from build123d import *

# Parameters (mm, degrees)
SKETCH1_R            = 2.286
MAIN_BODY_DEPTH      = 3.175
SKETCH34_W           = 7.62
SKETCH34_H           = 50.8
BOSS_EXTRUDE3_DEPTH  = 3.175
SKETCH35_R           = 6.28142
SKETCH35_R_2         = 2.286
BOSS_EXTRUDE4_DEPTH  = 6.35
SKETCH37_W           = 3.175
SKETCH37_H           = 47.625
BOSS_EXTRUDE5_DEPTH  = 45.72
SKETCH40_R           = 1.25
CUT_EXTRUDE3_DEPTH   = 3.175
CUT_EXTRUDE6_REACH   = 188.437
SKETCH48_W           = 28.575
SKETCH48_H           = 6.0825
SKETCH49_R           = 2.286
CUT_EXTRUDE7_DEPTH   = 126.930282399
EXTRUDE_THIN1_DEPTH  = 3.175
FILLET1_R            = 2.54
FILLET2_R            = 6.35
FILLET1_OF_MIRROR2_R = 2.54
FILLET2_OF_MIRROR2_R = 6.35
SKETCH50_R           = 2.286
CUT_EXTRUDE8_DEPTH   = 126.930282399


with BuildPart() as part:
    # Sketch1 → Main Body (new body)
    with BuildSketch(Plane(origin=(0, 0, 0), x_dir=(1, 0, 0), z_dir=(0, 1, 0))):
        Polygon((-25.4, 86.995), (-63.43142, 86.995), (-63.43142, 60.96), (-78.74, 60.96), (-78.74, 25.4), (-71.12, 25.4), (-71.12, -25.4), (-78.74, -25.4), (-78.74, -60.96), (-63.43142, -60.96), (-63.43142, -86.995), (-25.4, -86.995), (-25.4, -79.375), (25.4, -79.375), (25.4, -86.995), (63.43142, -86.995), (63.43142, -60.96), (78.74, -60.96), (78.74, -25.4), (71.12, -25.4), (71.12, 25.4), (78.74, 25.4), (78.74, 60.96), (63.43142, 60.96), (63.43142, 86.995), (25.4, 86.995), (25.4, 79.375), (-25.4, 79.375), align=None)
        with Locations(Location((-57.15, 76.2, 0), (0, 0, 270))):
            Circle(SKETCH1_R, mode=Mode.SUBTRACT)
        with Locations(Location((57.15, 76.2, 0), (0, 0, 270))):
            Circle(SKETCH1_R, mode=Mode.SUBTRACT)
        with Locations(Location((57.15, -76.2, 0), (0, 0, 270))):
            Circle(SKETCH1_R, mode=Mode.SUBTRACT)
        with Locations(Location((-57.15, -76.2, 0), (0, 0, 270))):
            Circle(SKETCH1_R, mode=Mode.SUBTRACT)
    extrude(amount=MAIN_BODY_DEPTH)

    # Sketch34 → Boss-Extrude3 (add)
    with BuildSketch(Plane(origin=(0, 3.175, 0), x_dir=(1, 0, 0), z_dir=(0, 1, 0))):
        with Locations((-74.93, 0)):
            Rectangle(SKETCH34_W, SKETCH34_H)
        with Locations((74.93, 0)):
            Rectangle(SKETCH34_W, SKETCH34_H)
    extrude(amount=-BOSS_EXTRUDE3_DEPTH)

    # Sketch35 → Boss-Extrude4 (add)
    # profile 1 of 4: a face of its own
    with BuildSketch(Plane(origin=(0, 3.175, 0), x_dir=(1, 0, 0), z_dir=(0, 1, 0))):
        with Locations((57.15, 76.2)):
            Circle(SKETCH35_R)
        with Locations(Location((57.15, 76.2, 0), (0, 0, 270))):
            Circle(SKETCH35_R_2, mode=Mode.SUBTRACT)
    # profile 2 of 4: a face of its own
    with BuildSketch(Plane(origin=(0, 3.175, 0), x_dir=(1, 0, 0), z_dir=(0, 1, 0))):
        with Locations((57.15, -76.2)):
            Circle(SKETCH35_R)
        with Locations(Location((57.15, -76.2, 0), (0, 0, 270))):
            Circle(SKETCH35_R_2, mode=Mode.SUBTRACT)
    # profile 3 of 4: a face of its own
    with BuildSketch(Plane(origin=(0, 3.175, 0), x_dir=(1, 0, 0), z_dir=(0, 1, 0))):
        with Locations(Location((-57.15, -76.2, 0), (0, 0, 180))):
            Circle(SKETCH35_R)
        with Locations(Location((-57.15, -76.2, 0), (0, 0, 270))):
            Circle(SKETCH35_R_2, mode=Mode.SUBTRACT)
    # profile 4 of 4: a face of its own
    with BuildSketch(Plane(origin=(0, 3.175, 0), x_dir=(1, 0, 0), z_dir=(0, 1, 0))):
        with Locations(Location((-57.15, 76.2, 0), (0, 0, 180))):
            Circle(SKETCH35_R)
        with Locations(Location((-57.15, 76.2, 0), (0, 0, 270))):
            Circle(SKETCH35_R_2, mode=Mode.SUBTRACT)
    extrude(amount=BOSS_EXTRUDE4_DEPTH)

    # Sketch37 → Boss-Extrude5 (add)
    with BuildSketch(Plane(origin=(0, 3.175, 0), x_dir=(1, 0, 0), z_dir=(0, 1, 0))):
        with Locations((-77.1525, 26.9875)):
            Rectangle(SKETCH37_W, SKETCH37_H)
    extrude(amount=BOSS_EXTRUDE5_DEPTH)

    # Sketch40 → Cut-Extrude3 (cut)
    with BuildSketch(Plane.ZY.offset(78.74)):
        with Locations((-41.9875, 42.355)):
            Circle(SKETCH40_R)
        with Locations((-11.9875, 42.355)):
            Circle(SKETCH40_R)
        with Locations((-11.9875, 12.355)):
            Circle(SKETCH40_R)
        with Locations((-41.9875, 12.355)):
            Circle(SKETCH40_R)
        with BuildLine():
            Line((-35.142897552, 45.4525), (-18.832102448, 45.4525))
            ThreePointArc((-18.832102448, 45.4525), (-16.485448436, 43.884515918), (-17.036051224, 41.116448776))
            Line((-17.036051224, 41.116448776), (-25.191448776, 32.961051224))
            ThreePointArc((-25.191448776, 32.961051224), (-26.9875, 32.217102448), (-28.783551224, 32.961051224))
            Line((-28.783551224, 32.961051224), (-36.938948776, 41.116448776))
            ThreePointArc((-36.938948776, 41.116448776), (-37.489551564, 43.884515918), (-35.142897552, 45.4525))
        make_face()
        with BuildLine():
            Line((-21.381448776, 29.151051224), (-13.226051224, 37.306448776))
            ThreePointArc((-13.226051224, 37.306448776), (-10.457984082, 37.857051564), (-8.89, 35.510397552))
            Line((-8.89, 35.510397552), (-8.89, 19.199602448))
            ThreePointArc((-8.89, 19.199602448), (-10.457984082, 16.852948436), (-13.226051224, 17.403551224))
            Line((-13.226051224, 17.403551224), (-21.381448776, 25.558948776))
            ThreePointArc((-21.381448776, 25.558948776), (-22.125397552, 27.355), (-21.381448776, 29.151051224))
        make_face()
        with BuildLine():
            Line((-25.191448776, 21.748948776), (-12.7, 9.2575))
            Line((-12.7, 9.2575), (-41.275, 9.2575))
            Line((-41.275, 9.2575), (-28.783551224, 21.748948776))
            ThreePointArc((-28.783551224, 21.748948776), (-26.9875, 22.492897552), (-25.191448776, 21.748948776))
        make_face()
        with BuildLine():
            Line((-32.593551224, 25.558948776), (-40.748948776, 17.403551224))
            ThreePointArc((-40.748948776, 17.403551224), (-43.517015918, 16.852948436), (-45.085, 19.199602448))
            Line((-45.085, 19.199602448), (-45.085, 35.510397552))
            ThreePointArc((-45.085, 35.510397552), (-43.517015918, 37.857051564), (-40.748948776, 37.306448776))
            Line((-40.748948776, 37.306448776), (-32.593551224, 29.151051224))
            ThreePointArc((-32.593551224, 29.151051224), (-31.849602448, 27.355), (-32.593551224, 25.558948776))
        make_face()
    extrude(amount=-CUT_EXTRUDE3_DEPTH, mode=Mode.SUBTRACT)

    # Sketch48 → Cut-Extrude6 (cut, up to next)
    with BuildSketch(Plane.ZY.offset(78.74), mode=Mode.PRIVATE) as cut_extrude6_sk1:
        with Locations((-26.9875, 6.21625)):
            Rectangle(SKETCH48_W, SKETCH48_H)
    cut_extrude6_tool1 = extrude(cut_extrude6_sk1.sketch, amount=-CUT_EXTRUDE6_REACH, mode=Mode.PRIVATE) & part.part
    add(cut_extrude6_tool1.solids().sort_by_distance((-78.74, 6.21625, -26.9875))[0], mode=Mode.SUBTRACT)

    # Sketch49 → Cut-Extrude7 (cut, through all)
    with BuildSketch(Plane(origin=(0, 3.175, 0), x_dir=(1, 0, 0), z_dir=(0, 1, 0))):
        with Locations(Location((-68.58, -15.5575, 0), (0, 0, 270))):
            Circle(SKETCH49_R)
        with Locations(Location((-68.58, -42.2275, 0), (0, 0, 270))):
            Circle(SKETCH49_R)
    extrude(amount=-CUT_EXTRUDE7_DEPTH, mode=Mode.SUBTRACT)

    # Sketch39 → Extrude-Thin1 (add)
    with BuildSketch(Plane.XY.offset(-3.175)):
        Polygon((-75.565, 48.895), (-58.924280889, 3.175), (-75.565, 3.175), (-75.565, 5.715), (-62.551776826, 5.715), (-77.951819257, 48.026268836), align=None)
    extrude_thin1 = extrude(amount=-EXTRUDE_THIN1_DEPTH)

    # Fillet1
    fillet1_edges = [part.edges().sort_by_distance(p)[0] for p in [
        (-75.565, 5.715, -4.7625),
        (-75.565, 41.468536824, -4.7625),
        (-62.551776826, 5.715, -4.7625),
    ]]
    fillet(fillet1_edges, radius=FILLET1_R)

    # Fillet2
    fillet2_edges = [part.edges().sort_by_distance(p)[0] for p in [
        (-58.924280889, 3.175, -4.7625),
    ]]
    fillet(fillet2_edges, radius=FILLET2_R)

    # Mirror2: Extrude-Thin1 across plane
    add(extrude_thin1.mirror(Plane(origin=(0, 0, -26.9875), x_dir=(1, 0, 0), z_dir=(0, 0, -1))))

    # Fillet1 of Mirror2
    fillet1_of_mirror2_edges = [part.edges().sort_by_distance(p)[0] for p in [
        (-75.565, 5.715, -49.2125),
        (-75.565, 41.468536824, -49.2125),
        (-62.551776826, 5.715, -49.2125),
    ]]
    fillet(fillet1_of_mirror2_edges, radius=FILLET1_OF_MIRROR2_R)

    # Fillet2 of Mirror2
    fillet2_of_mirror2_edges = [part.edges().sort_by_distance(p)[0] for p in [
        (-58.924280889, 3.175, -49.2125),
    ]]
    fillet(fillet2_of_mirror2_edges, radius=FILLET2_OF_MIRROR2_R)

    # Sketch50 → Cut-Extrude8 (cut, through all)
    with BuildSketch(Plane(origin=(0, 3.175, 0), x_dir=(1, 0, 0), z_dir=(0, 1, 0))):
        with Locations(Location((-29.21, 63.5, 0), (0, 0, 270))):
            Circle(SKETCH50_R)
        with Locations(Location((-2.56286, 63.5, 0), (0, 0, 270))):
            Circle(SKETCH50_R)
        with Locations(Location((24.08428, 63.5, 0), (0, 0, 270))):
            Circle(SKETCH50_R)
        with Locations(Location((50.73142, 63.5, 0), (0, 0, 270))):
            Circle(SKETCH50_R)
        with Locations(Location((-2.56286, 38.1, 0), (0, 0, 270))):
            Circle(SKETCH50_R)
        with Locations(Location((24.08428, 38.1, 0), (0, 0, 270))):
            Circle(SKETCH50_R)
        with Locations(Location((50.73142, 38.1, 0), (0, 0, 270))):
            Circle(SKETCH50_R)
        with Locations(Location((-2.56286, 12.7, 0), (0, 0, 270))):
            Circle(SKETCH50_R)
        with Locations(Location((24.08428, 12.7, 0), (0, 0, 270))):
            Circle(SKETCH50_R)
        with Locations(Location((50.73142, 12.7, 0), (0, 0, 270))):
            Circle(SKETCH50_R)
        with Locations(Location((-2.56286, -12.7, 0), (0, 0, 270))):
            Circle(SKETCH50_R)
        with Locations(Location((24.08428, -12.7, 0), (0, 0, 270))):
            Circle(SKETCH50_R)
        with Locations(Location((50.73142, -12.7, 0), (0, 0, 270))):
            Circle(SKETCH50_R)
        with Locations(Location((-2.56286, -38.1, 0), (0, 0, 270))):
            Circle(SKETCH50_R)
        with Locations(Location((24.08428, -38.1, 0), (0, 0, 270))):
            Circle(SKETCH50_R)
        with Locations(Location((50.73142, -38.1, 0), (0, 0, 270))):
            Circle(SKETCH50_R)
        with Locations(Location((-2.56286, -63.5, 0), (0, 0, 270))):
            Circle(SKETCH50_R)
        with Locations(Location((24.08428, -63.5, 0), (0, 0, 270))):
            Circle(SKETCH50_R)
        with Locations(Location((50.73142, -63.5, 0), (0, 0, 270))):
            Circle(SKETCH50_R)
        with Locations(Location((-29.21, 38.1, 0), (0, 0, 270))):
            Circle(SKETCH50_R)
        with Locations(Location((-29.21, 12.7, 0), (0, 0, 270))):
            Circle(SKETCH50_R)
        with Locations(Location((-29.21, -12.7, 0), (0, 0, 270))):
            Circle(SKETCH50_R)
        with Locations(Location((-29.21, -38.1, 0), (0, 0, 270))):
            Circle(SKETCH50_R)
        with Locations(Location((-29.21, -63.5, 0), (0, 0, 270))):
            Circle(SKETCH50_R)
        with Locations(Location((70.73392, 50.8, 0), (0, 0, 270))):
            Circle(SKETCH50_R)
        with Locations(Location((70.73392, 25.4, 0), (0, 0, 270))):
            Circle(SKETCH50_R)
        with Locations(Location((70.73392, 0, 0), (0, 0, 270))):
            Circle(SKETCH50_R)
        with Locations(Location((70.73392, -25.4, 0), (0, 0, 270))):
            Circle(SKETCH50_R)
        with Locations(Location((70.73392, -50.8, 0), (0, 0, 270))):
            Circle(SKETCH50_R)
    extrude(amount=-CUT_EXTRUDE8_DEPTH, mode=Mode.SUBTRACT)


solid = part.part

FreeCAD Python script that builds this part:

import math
import FreeCAD as App
import Part
import Sketcher
from FreeCAD import Vector
Q = App.Units.Quantity


def edges_at(feature, points):
    """Names of the edges that pass closest to the given points."""
    edges = feature.Shape.Edges
    near = lambda p: min(range(len(edges)), key=lambda i: edges[i].distToShape(Part.Vertex(*p))[0])
    return sorted({f"Edge{near(p) + 1}" for p in points})

doc = App.newDocument("Part")
params = doc.addObject("Spreadsheet::Sheet", "Params")
for row, (alias, value) in enumerate([
    ("sketch1_diameter", "0.18 in"),
    ("sketch1_width", "2 in"),
    ("sketch1_width2", "0.3 in"),
    ("sketch1_height", "1.4 in"),
    ("sketch1_height2", "1.025 in"),
    ("pad1_length", "0.125 in"),
    ("sketch2_height", "2 in"),
    ("sketch2_width", "0.3 in"),
    ("pad2_length", "0.125 in"),
    ("sketch3_diameter", "0.18 in"),
    ("pad3_length", "0.25 in"),
    ("sketch4_width", "0.125 in"),
    ("sketch4_height", "1.875 in"),
    ("pad4_length", "1.8 in"),
    ("sketch5_radius", "0.1 in"),
    ("sketch5_height", "1.125 in"),
    ("pocket1_length", "0.125 in"),
    ("sketch6_height", "1.125 in"),
    ("sketch7_diameter", "0.18 in"),
    ("sketch8_height", "0.1 in"),
    ("sketch8_length", "0.1 in"),
    ("pad5_length", "0.125 in"),
    ("fillet_radius", "0.1 in"),
    ("fillet2_radius", "0.25 in"),
    ("fillet3_radius", "0.1 in"),
    ("fillet4_radius", "0.25 in"),
    ("sketch9_diameter", "0.18 in"),
], start=1):
    params.set(f"A{row}", alias)
    params.set(f"B{row}", "=" + value)
    params.setAlias(f"B{row}", alias)

body = doc.addObject("PartDesign::Body", "Body")

# Sketch on XZ plane
sketch1 = body.newObject("Sketcher::SketchObject", "Sketch")
sketch1.AttachmentSupport = (doc.getObject("XZ_Plane"), [""])
sketch1.MapMode = "FlatFace"
sketch1.addGeometry([
    Part.LineSegment(Vector(-25.4, -87, 0), Vector(-63.4, -87, 0)),  # 0
    Part.LineSegment(Vector(-63.4, -87, 0), Vector(-63.4, -61, 0)),  # 1
    Part.LineSegment(Vector(-63.4, -61, 0), Vector(-78.7, -61, 0)),  # 2
    Part.LineSegment(Vector(-78.7, -61, 0), Vector(-78.7, -25.4, 0)),  # 3
    Part.LineSegment(Vector(-78.7, -25.4, 0), Vector(-71.1, -25.4, 0)),  # 4
    Part.LineSegment(Vector(-71.1, -25.4, 0), Vector(-71.1, 25.4, 0)),  # 5
    Part.LineSegment(Vector(-71.1, 25.4, 0), Vector(-78.7, 25.4, 0)),  # 6
    Part.LineSegment(Vector(-78.7, 25.4, 0), Vector(-78.7, 61, 0)),  # 7
    Part.LineSegment(Vector(-78.7, 61, 0), Vector(-63.4, 61, 0)),  # 8
    Part.LineSegment(Vector(-63.4, 61, 0), Vector(-63.4, 87, 0)),  # 9
    Part.LineSegment(Vector(-63.4, 87, 0), Vector(-25.4, 87, 0)),  # 10
    Part.LineSegment(Vector(-25.4, 87, 0), Vector(-25.4, 79.4, 0)),  # 11
    Part.LineSegment(Vector(-25.4, 79.4, 0), Vector(25.4, 79.4, 0)),  # 12
    Part.LineSegment(Vector(25.4, 79.4, 0), Vector(25.4, 87, 0)),  # 13
    Part.LineSegment(Vector(25.4, 87, 0), Vector(63.4, 87, 0)),  # 14
    Part.LineSegment(Vector(63.4, 87, 0), Vector(63.4, 61, 0)),  # 15
    Part.LineSegment(Vector(63.4, 61, 0), Vector(78.7, 61, 0)),  # 16
    Part.LineSegment(Vector(78.7, 61, 0), Vector(78.7, 25.4, 0)),  # 17
    Part.LineSegment(Vector(78.7, 25.4, 0), Vector(71.1, 25.4, 0)),  # 18
    Part.LineSegment(Vector(71.1, 25.4, 0), Vector(71.1, -25.4, 0)),  # 19
    Part.LineSegment(Vector(71.1, -25.4, 0), Vector(78.7, -25.4, 0)),  # 20
    Part.LineSegment(Vector(78.7, -25.4, 0), Vector(78.7, -61, 0)),  # 21
    Part.LineSegment(Vector(78.7, -61, 0), Vector(63.4, -61, 0)),  # 22
    Part.LineSegment(Vector(63.4, -61, 0), Vector(63.4, -87, 0)),  # 23
    Part.LineSegment(Vector(63.4, -87, 0), Vector(25.4, -87, 0)),  # 24
    Part.LineSegment(Vector(25.4, -87, 0), Vector(25.4, -79.4, 0)),  # 25
    Part.LineSegment(Vector(25.4, -79.4, 0), Vector(-25.4, -79.4, 0)),  # 26
    Part.LineSegment(Vector(-25.4, -79.4, 0), Vector(-25.4, -87, 0)),  # 27
    Part.Circle(Vector(-57.1, 76.2, 0), Vector(0, 0, 1), 2.3),  # 28
    Part.Circle(Vector(57.1, 76.2, 0), Vector(0, 0, 1), 2.3),  # 29
    Part.Circle(Vector(-57.1, -76.2, 0), Vector(0, 0, 1), 2.3),  # 30
    Part.Circle(Vector(57.1, -76.2, 0), Vector(0, 0, 1), 2.3),  # 31
], False)
sketch1.addConstraint([
    Sketcher.Constraint("Coincident", 0, 2, 1, 1),
    Sketcher.Constraint("Coincident", 1, 2, 2, 1),
    Sketcher.Constraint("Coincident", 2, 2, 3, 1),
    Sketcher.Constraint("Coincident", 3, 2, 4, 1),
    Sketcher.Constraint("Coincident", 4, 2, 5, 1),
    Sketcher.Constraint("Coincident", 5, 2, 6, 1),
    Sketcher.Constraint("Coincident", 6, 2, 7, 1),
    Sketcher.Constraint("Coincident", 7, 2, 8, 1),
    Sketcher.Constraint("Coincident", 8, 2, 9, 1),
    Sketcher.Constraint("Coincident", 9, 2, 10, 1),
    Sketcher.Constraint("Coincident", 10, 2, 11, 1),
    Sketcher.Constraint("Coincident", 11, 2, 12, 1),
    Sketcher.Constraint("Coincident", 12, 2, 13, 1),
    Sketcher.Constraint("Coincident", 13, 2, 14, 1),
    Sketcher.Constraint("Coincident", 14, 2, 15, 1),
    Sketcher.Constraint("Coincident", 15, 2, 16, 1),
    Sketcher.Constraint("Coincident", 16, 2, 17, 1),
    Sketcher.Constraint("Coincident", 17, 2, 18, 1),
    Sketcher.Constraint("Coincident", 18, 2, 19, 1),
    Sketcher.Constraint("Coincident", 19, 2, 20, 1),
    Sketcher.Constraint("Coincident", 20, 2, 21, 1),
    Sketcher.Constraint("Coincident", 21, 2, 22, 1),
    Sketcher.Constraint("Coincident", 22, 2, 23, 1),
    Sketcher.Constraint("Coincident", 23, 2, 24, 1),
    Sketcher.Constraint("Coincident", 24, 2, 25, 1),
    Sketcher.Constraint("Coincident", 25, 2, 26, 1),
    Sketcher.Constraint("Coincident", 26, 2, 27, 1),
    Sketcher.Constraint("Coincident", 27, 2, 0, 1),
    Sketcher.Constraint("Horizontal", 0),
    Sketcher.Constraint("Vertical", 1),
    Sketcher.Constraint("Horizontal", 2),
    Sketcher.Constraint("Vertical", 3),
    Sketcher.Constraint("Horizontal", 4),
    Sketcher.Constraint("Vertical", 5),
    Sketcher.Constraint("Horizontal", 6),
    Sketcher.Constraint("Vertical", 7),
    Sketcher.Constraint("Horizontal", 8),
    Sketcher.Constraint("Vertical", 9),
    Sketcher.Constraint("Horizontal", 10),
    Sketcher.Constraint("Vertical", 11),
    Sketcher.Constraint("Horizontal", 12),
    Sketcher.Constraint("Vertical", 13),
    Sketcher.Constraint("Horizontal", 14),
    Sketcher.Constraint("Vertical", 15),
    Sketcher.Constraint("Horizontal", 16),
    Sketcher.Constraint("Vertical", 17),
    Sketcher.Constraint("Horizontal", 18),
    Sketcher.Constraint("Vertical", 19),
    Sketcher.Constraint("Horizontal", 20),
    Sketcher.Constraint("Vertical", 21),
    Sketcher.Constraint("Horizontal", 22),
    Sketcher.Constraint("Vertical", 23),
    Sketcher.Constraint("Horizontal", 24),
    Sketcher.Constraint("Vertical", 25),
    Sketcher.Constraint("Horizontal", 26),
    Sketcher.Constraint("Vertical", 27),
    Sketcher.Constraint("Equal", 28, 29),
    Sketcher.Constraint("Equal", 29, 30),
    Sketcher.Constraint("Equal", 30, 31),
    Sketcher.Constraint("Symmetric", 29, 3, 30, 3, -1, 1),
    Sketcher.Constraint("Symmetric", 28, 3, 31, 3, -1, 1),
    Sketcher.Constraint("Symmetric", 0, 2, 14, 2, -1, 1),
    Sketcher.Constraint("Symmetric", 2, 2, 16, 2, -1, 1),
    Sketcher.Constraint("Symmetric", 4, 2, 18, 2, -1, 1),
    Sketcher.Constraint("Symmetric", 6, 2, 20, 2, -1, 1),
    Sketcher.Constraint("Symmetric", 8, 2, 22, 2, -1, 1),
    Sketcher.Constraint("Symmetric", 10, 2, 24, 2, -1, 1),
    Sketcher.Constraint("Symmetric", 12, 2, 26, 2, -1, 1),
    Sketcher.Constraint("Symmetric", 28, 3, 29, 3, -2),
    Sketcher.Constraint("Symmetric", 10, 2, 13, 2, -2),
    Sketcher.Constraint("Symmetric", 8, 2, 15, 2, -2),
    Sketcher.Constraint("Symmetric", 6, 2, 17, 2, -2),
    Sketcher.Constraint("Equal", 26, 5),
    Sketcher.Constraint("Equal", 20, 11),
    Sketcher.Constraint("Diameter", 28, Q("0.18 in")),
    Sketcher.Constraint("DistanceX", 12, 1, 12, 2, Q("2 in")),
    Sketcher.Constraint("DistanceX", 4, 1, 4, 2, Q("0.3 in")),
    Sketcher.Constraint("DistanceY", 3, 1, 3, 2, Q("1.4 in")),
    Sketcher.Constraint("DistanceY", -1, 1, 28, 3, Q("3 in")),
    Sketcher.Constraint("DistanceX", 2, 2, -1, 1, Q("3.1 in")),
    Sketcher.Constraint("DistanceX", 28, 3, 29, 3, Q("4.5 in")),
    Sketcher.Constraint("DistanceY", 1, 1, 1, 2, Q("1.025 in")),
    Sketcher.Constraint("DistanceX", 0, 2, 0, 1, Q("1.4973 in")),
])
sketch1.setExpression("Constraints[74]", "Params.sketch1_diameter")
sketch1.setExpression("Constraints[75]", "Params.sketch1_width")
sketch1.setExpression("Constraints[76]", "Params.sketch1_width2")
sketch1.setExpression("Constraints[77]", "Params.sketch1_height")
sketch1.setExpression("Constraints[81]", "Params.sketch1_height2")
pad1 = body.newObject("PartDesign::Pad", "Pad")
pad1.Profile = sketch1
pad1.setExpression("Length", "Params.pad1_length")
pad1.Reversed = True

# Sketch on XZ plane
sketch2 = body.newObject("Sketcher::SketchObject", "Sketch001")
sketch2.AttachmentSupport = (doc.getObject("XZ_Plane"), [""])
sketch2.MapMode = "FlatFace"
sketch2.AttachmentOffset = App.Placement(Vector(0, 0, -0.125 * 25.4), App.Rotation())
sketch2.addGeometry([
    Part.LineSegment(Vector(-79, -25, 0), Vector(-79, 25, 0)),  # 0
    Part.LineSegment(Vector(-79, 25, 0), Vector(-71, 25, 0)),  # 1
    Part.LineSegment(Vector(-71, 25, 0), Vector(-71, -25, 0)),  # 2
    Part.LineSegment(Vector(-71, -25, 0), Vector(-79, -25, 0)),  # 3
    Part.LineSegment(Vector(71, -25, 0), Vector(71, 25, 0)),  # 4
    Part.LineSegment(Vector(71, 25, 0), Vector(79, 25, 0)),  # 5
    Part.LineSegment(Vector(79, 25, 0), Vector(79, -25, 0)),  # 6
    Part.LineSegment(Vector(79, -25, 0), Vector(71, -25, 0)),  # 7
], False)
sketch2.addConstraint([
    Sketcher.Constraint("Coincident", 0, 2, 1, 1),
    Sketcher.Constraint("Coincident", 1, 2, 2, 1),
    Sketcher.Constraint("Coincident", 2, 2, 3, 1),
    Sketcher.Constraint("Coincident", 3, 2, 0, 1),
    Sketcher.Constraint("Coincident", 4, 2, 5, 1),
    Sketcher.Constraint("Coincident", 5, 2, 6, 1),
    Sketcher.Constraint("Coincident", 6, 2, 7, 1),
    Sketcher.Constraint("Coincident", 7, 2, 4, 1),
    Sketcher.Constraint("Vertical", 0),
    Sketcher.Constraint("Horizontal", 1),
    Sketcher.Constraint("Vertical", 2),
    Sketcher.Constraint("Horizontal", 3),
    Sketcher.Constraint("Vertical", 4),
    Sketcher.Constraint("Horizontal", 5),
    Sketcher.Constraint("Vertical", 6),
    Sketcher.Constraint("Horizontal", 7),
    Sketcher.Constraint("Symmetric", 2, 2, 4, 2, -1, 1),
    Sketcher.Constraint("Symmetric", 0, 2, 6, 2, -1, 1),
    Sketcher.Constraint("Horizontal", 1, 2, 4, 2),
    Sketcher.Constraint("DistanceY", 0, 1, 0, 2, Q("2 in")),
    Sketcher.Constraint("DistanceX", 1, 1, 1, 2, Q("0.3 in")),
    Sketcher.Constraint("DistanceX", 0, 2, -1, 1, Q("3.1 in")),
])
sketch2.setExpression("Constraints[19]", "Params.sketch2_height")
sketch2.setExpression("Constraints[20]", "Params.sketch2_width")
pad2 = body.newObject("PartDesign::Pad", "Pad001")
pad2.Profile = sketch2
pad2.setExpression("Length", "Params.pad2_length")

# Sketch on XZ plane
sketch3 = body.newObject("Sketcher::SketchObject", "Sketch002")
sketch3.AttachmentSupport = (doc.getObject("XZ_Plane"), [""])
sketch3.MapMode = "FlatFace"
sketch3.AttachmentOffset = App.Placement(Vector(0, 0, -0.125 * 25.4), App.Rotation())
sketch3.addGeometry([
    Part.Circle(Vector(57.1, -76.2, 0), Vector(0, 0, 1), 6.3),  # 0
    Part.Circle(Vector(57.1, -76.2, 0), Vector(0, 0, 1), 2.3),  # 1
    Part.Circle(Vector(57.1, 76.2, 0), Vector(0, 0, 1), 6.3),  # 2
    Part.Circle(Vector(57.1, 76.2, 0), Vector(0, 0, 1), 2.3),  # 3
    Part.Circle(Vector(-57.1, 76.2, 0), Vector(0, 0, 1), 6.3),  # 4
    Part.Circle(Vector(-57.1, 76.2, 0), Vector(0, 0, 1), 2.3),  # 5
    Part.Circle(Vector(-57.1, -76.2, 0), Vector(0, 0, 1), 6.3),  # 6
    Part.Circle(Vector(-57.1, -76.2, 0), Vector(0, 0, 1), 2.3),  # 7
], False)
sketch3.addConstraint([
    Sketcher.Constraint("Coincident", 1, 3, 0, 3),
    Sketcher.Constraint("Coincident", 3, 3, 2, 3),
    Sketcher.Constraint("Coincident", 5, 3, 4, 3),
    Sketcher.Constraint("Coincident", 7, 3, 6, 3),
    Sketcher.Constraint("Equal", 0, 2),
    Sketcher.Constraint("Equal", 1, 3),
    Sketcher.Constraint("Equal", 2, 4),
    Sketcher.Constraint("Equal", 3, 5),
    Sketcher.Constraint("Equal", 4, 6),
    Sketcher.Constraint("Equal", 5, 7),
    Sketcher.Constraint("Symmetric", 0, 3, 4, 3, -1, 1),
    Sketcher.Constraint("Symmetric", 2, 3, 6, 3, -1, 1),
    Sketcher.Constraint("Symmetric", 2, 3, 4, 3, -2),
    Sketcher.Constraint("Diameter", 1, Q("0.18 in")),
    Sketcher.Constraint("DistanceY", 0, 3, -1, 1, Q("3 in")),
    Sketcher.Constraint("Diameter", 0, Q("0.4946 in")),
    Sketcher.Constraint("DistanceX", 4, 3, 2, 3, Q("4.5 in")),
])
sketch3.setExpression("Constraints[13]", "Params.sketch3_diameter")
pad3 = body.newObject("PartDesign::Pad", "Pad002")
pad3.Profile = sketch3
pad3.setExpression("Length", "Params.pad3_length")
pad3.Reversed = True

# Sketch on XZ plane
sketch4 = body.newObject("Sketcher::SketchObject", "Sketch003")
sketch4.AttachmentSupport = (doc.getObject("XZ_Plane"), [""])
sketch4.MapMode = "FlatFace"
sketch4.AttachmentOffset = App.Placement(Vector(0, 0, -0.125 * 25.4), App.Rotation())
sketch4.addGeometry([
    Part.LineSegment(Vector(-78.7, -50.8, 0), Vector(-78.7, -3.2, 0)),
    Part.LineSegment(Vector(-78.7, -3.2, 0), Vector(-75.6, -3.2, 0)),
    Part.LineSegment(Vector(-75.6, -3.2, 0), Vector(-75.6, -50.8, 0)),
    Part.LineSegment(Vector(-75.6, -50.8, 0), Vector(-78.7, -50.8, 0)),
], False)
sketch4.addConstraint([
    Sketcher.Constraint("Coincident", 0, 2, 1, 1),
    Sketcher.Constraint("Coincident", 1, 2, 2, 1),
    Sketcher.Constraint("Coincident", 2, 2, 3, 1),
    Sketcher.Constraint("Coincident", 3, 2, 0, 1),
    Sketcher.Constraint("Vertical", 0),
    Sketcher.Constraint("Horizontal", 1),
    Sketcher.Constraint("Vertical", 2),
    Sketcher.Constraint("Horizontal", 3),
    Sketcher.Constraint("DistanceY", 2, 2, -1, 1, Q("2 in")),
    Sketcher.Constraint("DistanceX", 0, 2, -1, 1, Q("3.1 in")),
    Sketcher.Constraint("DistanceX", 1, 1, 1, 2, Q("0.125 in")),
    Sketcher.Constraint("DistanceY", 0, 1, 0, 2, Q("1.875 in")),
])
sketch4.setExpression("Constraints[10]", "Params.sketch4_width")
sketch4.setExpression("Constraints[11]", "Params.sketch4_height")
pad4 = body.newObject("PartDesign::Pad", "Pad003")
pad4.Profile = sketch4
pad4.setExpression("Length", "Params.pad4_length")
pad4.Reversed = True

# Sketch on YZ plane
sketch5 = body.newObject("Sketcher::SketchObject", "Sketch004")
sketch5.AttachmentSupport = (doc.getObject("YZ_Plane"), [""])
sketch5.MapMode = "FlatFace"
sketch5.AttachmentOffset = App.Placement(Vector(0, 0, -3.1 * 25.4), App.Rotation())
sketch5.addGeometry([
    Part.Circle(Vector(42.4, -42, 0), Vector(0, 0, 1), 1.2),  # 0
    Part.Circle(Vector(42.4, -12, 0), Vector(0, 0, 1), 1.2),  # 1
    Part.Circle(Vector(12.4, -12, 0), Vector(0, 0, 1), 1.2),  # 2
    Part.Circle(Vector(12.4, -42, 0), Vector(0, 0, 1), 1.2),  # 3
    Part.LineSegment(Vector(45.5, -18.8, 0), Vector(45.5, -35.1, 0)),  # 4
    Part.ArcOfCircle(Part.Circle(Vector(42.9, -35.1, 0), Vector(0, 0, 1), 2.5), math.radians(-135), math.radians(0)),  # 5
    Part.LineSegment(Vector(41.1, -36.9, 0), Vector(33, -28.8, 0)),  # 6
    Part.ArcOfCircle(Part.Circle(Vector(34.8, -27, 0), Vector(0, 0, 1), 2.5), math.radians(135), math.radians(225)),  # 7
    Part.LineSegment(Vector(33, -25.2, 0), Vector(41.1, -17, 0)),  # 8
    Part.ArcOfCircle(Part.Circle(Vector(42.9, -18.8, 0), Vector(0, 0, 1), 2.5), math.radians(0), math.radians(135)),  # 9
    Part.LineSegment(Vector(37.3, -13.2, 0), Vector(29.2, -21.4, 0)),  # 10
    Part.ArcOfCircle(Part.Circle(Vector(27.4, -19.6, 0), Vector(0, 0, 1), 2.5), math.radians(-135), math.radians(-45)),  # 11
    Part.LineSegment(Vector(25.6, -21.4, 0), Vector(17.4, -13.2, 0)),  # 12
    Part.ArcOfCircle(Part.Circle(Vector(19.2, -11.4, 0), Vector(0, 0, 1), 2.5), math.radians(90), math.radians(225)),  # 13
    Part.LineSegment(Vector(19.2, -8.9, 0), Vector(35.5, -8.9, 0)),  # 14
    Part.ArcOfCircle(Part.Circle(Vector(35.5, -11.4, 0), Vector(0, 0, 1), 2.5), math.radians(-45), math.radians(90)),  # 15
    Part.LineSegment(Vector(9.3, -12.7, 0), Vector(21.7, -25.2, 0)),  # 16
    Part.ArcOfCircle(Part.Circle(Vector(20, -27, 0), Vector(0, 0, 1), 2.5), math.radians(-45), math.radians(45)),  # 17
    Part.LineSegment(Vector(21.7, -28.8, 0), Vector(9.3, -41.3, 0)),  # 18
    Part.LineSegment(Vector(9.3, -41.3, 0), Vector(9.3, -12.7, 0)),  # 19
    Part.LineSegment(Vector(17.4, -40.7, 0), Vector(25.6, -32.6, 0)),  # 20
    Part.ArcOfCircle(Part.Circle(Vector(27.4, -34.4, 0), Vector(0, 0, 1), 2.5), math.radians(45), math.radians(135)),  # 21
    Part.LineSegment(Vector(29.2, -32.6, 0), Vector(37.3, -40.7, 0)),  # 22
    Part.ArcOfCircle(Part.Circle(Vector(35.5, -42.5, 0), Vector(0, 0, 1), 2.5), math.radians(-90), math.radians(45)),  # 23
    Part.LineSegment(Vector(35.5, -45.1, 0), Vector(19.2, -45.1, 0)),  # 24
    Part.ArcOfCircle(Part.Circle(Vector(19.2, -42.5, 0), Vector(0, 0, 1), 2.5), math.radians(135), math.radians(270)),  # 25
], False)
sketch5.addConstraint([
    Sketcher.Constraint("Tangent", 4, 2, 5, 2),
    Sketcher.Constraint("Tangent", 5, 1, 6, 1),
    Sketcher.Constraint("Tangent", 6, 2, 7, 2),
    Sketcher.Constraint("Tangent", 7, 1, 8, 1),
    Sketcher.Constraint("Tangent", 8, 2, 9, 2),
    Sketcher.Constraint("Tangent", 9, 1, 4, 1),
    Sketcher.Constraint("Tangent", 10, 2, 11, 2),
    Sketcher.Constraint("Tangent", 11, 1, 12, 1),
    Sketcher.Constraint("Tangent", 12, 2, 13, 2),
    Sketcher.Constraint("Tangent", 13, 1, 14, 1),
    Sketcher.Constraint("Tangent", 14, 2, 15, 2),
    Sketcher.Constraint("Tangent", 15, 1, 10, 1),
    Sketcher.Constraint("Tangent", 16, 2, 17, 2),
    Sketcher.Constraint("Tangent", 17, 1, 18, 1),
    Sketcher.Constraint("Coincident", 18, 2, 19, 1),
    Sketcher.Constraint("Coincident", 19, 2, 16, 1),
    Sketcher.Constraint("Tangent", 20, 2, 21, 2),
    Sketcher.Constraint("Tangent", 21, 1, 22, 1),
    Sketcher.Constraint("Tangent", 22, 2, 23, 2),
    Sketcher.Constraint("Tangent", 23, 1, 24, 1),
    Sketcher.Constraint("Tangent", 24, 2, 25, 2),
    Sketcher.Constraint("Tangent", 25, 1, 20, 1),
    Sketcher.Constraint("Vertical", 4),
    Sketcher.Constraint("Horizontal", 14),
    Sketcher.Constraint("Vertical", 19),
    Sketcher.Constraint("Horizontal", 24),
    Sketcher.Constraint("Equal", 0, 1),
    Sketcher.Constraint("Equal", 1, 2),
    Sketcher.Constraint("Equal", 2, 3),
    Sketcher.Constraint("Equal", 5, 7),
    Sketcher.Constraint("Equal", 7, 9),
    Sketcher.Constraint("Equal", 9, 11),
    Sketcher.Constraint("Equal", 11, 13),
    Sketcher.Constraint("Equal", 13, 15),
    Sketcher.Constraint("Equal", 15, 17),
    Sketcher.Constraint("Equal", 17, 21),
    Sketcher.Constraint("Equal", 21, 23),
    Sketcher.Constraint("Equal", 23, 25),
    Sketcher.Constraint("Perpendicular", 6, 8),
    Sketcher.Constraint("Parallel", 8, 10),
    Sketcher.Constraint("Perpendicular", 10, 12),
    Sketcher.Constraint("Parallel", 12, 16),
    Sketcher.Constraint("Perpendicular", 16, 18),
    Sketcher.Constraint("Parallel", 18, 20),
    Sketcher.Constraint("Perpendicular", 20, 22),
    Sketcher.Constraint("Horizontal", 1, 3, 2, 3),
    Sketcher.Constraint("Horizontal", 0, 3, 3, 3),
    Sketcher.Constraint("Horizontal", 7, 3, 17, 3),
    Sketcher.Constraint("Horizontal", 10, 2, 11, 1),
    Sketcher.Constraint("Vertical", 0, 3, 1, 3),
    Sketcher.Constraint("Vertical", 2, 3, 3, 3),
    Sketcher.Constraint("Vertical", 11, 3, 21, 3),
    Sketcher.Constraint("Vertical", 15, 3, 23, 3),
    Sketcher.Constraint("Equal", 24, 4),
    Sketcher.Constraint("Radius", 5, Q("0.1 in")),
    Sketcher.Constraint("DistanceY", 19, 2, -1, 1, Q("0.5 in")),
    Sketcher.Constraint("Diameter", 0, 2.5),
    Sketcher.Constraint("DistanceY", 19, 1, 19, 2, Q("1.125 in")),
    Sketcher.Constraint("DistanceY", 13, 3, -1, 1, Q("0.45 in")),
    Sketcher.Constraint("DistanceX", 10, 2, 7, 1, Q("0.15 in")),
    Sketcher.Constraint("DistanceY", 7, 1, 10, 2, Q("0.15 in")),
    Sketcher.Constraint("DistanceX", 16, 2, 11, 1, Q("0.15 in")),
    Sketcher.Constraint("DistanceY", 25, 3, 18, 2, Q("0.05 in")),
    Sketcher.Constraint("DistanceX", -1, 1, 0, 3, 42.355),
    Sketcher.Constraint("DistanceY", 0, 3, -1, 1, 41.9875),
    Sketcher.Constraint("DistanceY", 1, 3, -1, 1, 11.9875),
    Sketcher.Constraint("DistanceX", -1, 1, 2, 3, 12.355),
    Sketcher.Constraint("DistanceX", -1, 1, 5, 3, 42.9125),
])
sketch5.setExpression("Constraints[54]", "Params.sketch5_radius")
sketch5.setExpression("Constraints[57]", "Params.sketch5_height")
pocket1 = body.newObject("PartDesign::Pocket", "Pocket")
pocket1.Profile = sketch5
pocket1.setExpression("Length", "Params.pocket1_length")
pocket1.Reversed = True

# Sketch on YZ plane
sketch6 = body.newObject("Sketcher::SketchObject", "Sketch005")
sketch6.AttachmentSupport = (doc.getObject("YZ_Plane"), [""])
sketch6.MapMode = "FlatFace"
sketch6.AttachmentOffset = App.Placement(Vector(0, 0, -3.1 * 25.4), App.Rotation())
sketch6.addGeometry([
    Part.LineSegment(Vector(9, -41, 0), Vector(3, -41, 0)),
    Part.LineSegment(Vector(3, -41, 0), Vector(3, -13, 0)),
    Part.LineSegment(Vector(3, -13, 0), Vector(9, -13, 0)),
    Part.LineSegment(Vector(9, -13, 0), Vector(9, -41, 0)),
], False)
sketch6.addConstraint([
    Sketcher.Constraint("Coincident", 0, 2, 1, 1),
    Sketcher.Constraint("Coincident", 1, 2, 2, 1),
    Sketcher.Constraint("Coincident", 2, 2, 3, 1),
    Sketcher.Constraint("Coincident", 3, 2, 0, 1),
    Sketcher.Constraint("Horizontal", 0),
    Sketcher.Constraint("Vertical", 1),
    Sketcher.Constraint("Horizontal", 2),
    Sketcher.Constraint("Vertical", 3),
    Sketcher.Constraint("DistanceY", 1, 2, -1, 1, Q("0.5 in")),
    Sketcher.Constraint("DistanceY", 1, 1, 1, 2, Q("1.125 in")),
    Sketcher.Constraint("DistanceX", -1, 1, 0, 2, Q("0.125 in")),
    Sketcher.Constraint("DistanceX", 0, 2, 0, 1, 6.0825),
])
sketch6.setExpression("Constraints[9]", "Params.sketch6_height")
pocket2 = body.newObject("PartDesign::Pocket", "Pocket001")
pocket2.Profile = sketch6
pocket2.Type = "UpToFirst"
pocket2.Reversed = True

# Sketch on XZ plane
sketch7 = body.newObject("Sketcher::SketchObject", "Sketch006")
sketch7.AttachmentSupport = (doc.getObject("XZ_Plane"), [""])
sketch7.MapMode = "FlatFace"
sketch7.AttachmentOffset = App.Placement(Vector(0, 0, -0.125 * 25.4), App.Rotation())
sketch7.addGeometry([
    Part.Circle(Vector(-68.6, 15.6, 0), Vector(0, 0, 1), 2.3),
    Part.Circle(Vector(-68.6, 42.2, 0), Vector(0, 0, 1), 2.3),
], False)
sketch7.addConstraint([
    Sketcher.Constraint("Equal", 0, 1),
    Sketcher.Constraint("Vertical", 0, 3, 1, 3),
    Sketcher.Constraint("Diameter", 0, Q("0.18 in")),
    Sketcher.Constraint("DistanceX", 0, 3, -1, 1, Q("2.7 in")),
    Sketcher.Constraint("DistanceY", 0, 3, 1, 3, Q("1.05 in")),
    Sketcher.Constraint("DistanceY", -1, 1, 0, 3, Q("0.6125 in")),
])
sketch7.setExpression("Constraints[2]", "Params.sketch7_diameter")
pocket3 = body.newObject("PartDesign::Pocket", "Pocket002")
pocket3.Profile = sketch7
pocket3.Type = "ThroughAll"
pocket3.Reversed = True

# Sketch on XY plane
sketch8 = body.newObject("Sketcher::SketchObject", "Sketch007")
sketch8.AttachmentSupport = (doc.getObject("XY_Plane"), [""])
sketch8.MapMode = "FlatFace"
sketch8.AttachmentOffset = App.Placement(Vector(0, 0, -0.125 * 25.4), App.Rotation())
sketch8.addGeometry([
    Part.LineSegment(Vector(-58.9, 3.2, 0), Vector(-75.6, 48.9, 0)),  # 0
    Part.LineSegment(Vector(-75.6, 48.9, 0), Vector(-78, 48, 0)),  # 1
    Part.LineSegment(Vector(-78, 48, 0), Vector(-62.6, 5.7, 0)),  # 2
    Part.LineSegment(Vector(-62.6, 5.7, 0), Vector(-75.6, 5.7, 0)),  # 3
    Part.LineSegment(Vector(-75.6, 5.7, 0), Vector(-75.6, 3.2, 0)),  # 4
    Part.LineSegment(Vector(-75.6, 3.2, 0), Vector(-58.9, 3.2, 0)),  # 5
], False)
sketch8.addConstraint([
    Sketcher.Constraint("Coincident", 0, 2, 1, 1),
    Sketcher.Constraint("Coincident", 1, 2, 2, 1),
    Sketcher.Constraint("Coincident", 2, 2, 3, 1),
    Sketcher.Constraint("Coincident", 3, 2, 4, 1),
    Sketcher.Constraint("Coincident", 4, 2, 5, 1),
    Sketcher.Constraint("Coincident", 5, 2, 0, 1),
    Sketcher.Constraint("Horizontal", 3),
    Sketcher.Constraint("Vertical", 4),
    Sketcher.Constraint("Horizontal", 5),
    Sketcher.Constraint("Perpendicular", 0, 1),
    Sketcher.Constraint("Perpendicular", 1, 2),
    Sketcher.Constraint("Vertical", 0, 2, 3, 2),
    Sketcher.Constraint("DistanceY", 4, 2, 4, 1, Q("0.1 in")),
    Sketcher.Constraint("Angle", 0, Q("110 deg")),
    Sketcher.Constraint("Distance", 1, Q("0.1 in")),
    Sketcher.Constraint("DistanceY", 2, 2, 0, 2, Q("1.7 in")),
    Sketcher.Constraint("DistanceX", 0, 2, -1, 1, Q("2.975 in")),
    Sketcher.Constraint("DistanceY", -1, 1, 0, 2, Q("1.925 in")),
])
sketch8.setExpression("Constraints[12]", "Params.sketch8_height")
sketch8.setExpression("Constraints[14]", "Params.sketch8_length")
pad5 = body.newObject("PartDesign::Pad", "Pad004")
pad5.Profile = sketch8
pad5.setExpression("Length", "Params.pad5_length")
pad5.Reversed = True
doc.recompute()

fillet = body.newObject("PartDesign::Fillet", "Fillet")
fillet.Base = (pad5, edges_at(pad5, [(-75.565, 5.715, -4.763), (-75.565, 41.469, -4.763), (-62.552, 5.715, -4.763)]))
fillet.setExpression("Radius", "Params.fillet_radius")
doc.recompute()

fillet2 = body.newObject("PartDesign::Fillet", "Fillet001")
fillet2.Base = (fillet, edges_at(fillet, [(-58.924, 3.175, -4.763)]))
fillet2.setExpression("Radius", "Params.fillet2_radius")
doc.recompute()

datumplane = body.newObject("PartDesign::Plane", "DatumPlane")
datumplane.AttachmentSupport = (doc.getObject("XY_Plane"), [""])
datumplane.MapMode = "FlatFace"
datumplane.AttachmentOffset = App.Placement(Vector(0, 0, -1.0625 * 25.4), App.Rotation())
mirrored = body.newObject("PartDesign::Mirrored", "Mirrored")
mirrored.Originals = [pad5]
mirrored.MirrorPlane = (datumplane, [""])
body.Tip = mirrored
doc.recompute()

fillet3 = body.newObject("PartDesign::Fillet", "Fillet002")
fillet3.Base = (mirrored, edges_at(mirrored, [(-75.565, 5.715, -49.212), (-75.565, 41.469, -49.212), (-62.552, 5.715, -49.212)]))
fillet3.setExpression("Radius", "Params.fillet3_radius")
doc.recompute()

fillet4 = body.newObject("PartDesign::Fillet", "Fillet003")
fillet4.Base = (fillet3, edges_at(fillet3, [(-58.924, 3.175, -49.212)]))
fillet4.setExpression("Radius", "Params.fillet4_radius")

# Sketch on XZ plane
sketch9 = body.newObject("Sketcher::SketchObject", "Sketch008")
sketch9.AttachmentSupport = (doc.getObject("XZ_Plane"), [""])
sketch9.MapMode = "FlatFace"
sketch9.AttachmentOffset = App.Placement(Vector(0, 0, -0.125 * 25.4), App.Rotation())
sketch9.addGeometry([
    Part.Circle(Vector(-29.2, -63.5, 0), Vector(0, 0, 1), 2.3),  # 0
    Part.Circle(Vector(-2.6, -63.5, 0), Vector(0, 0, 1), 2.3),  # 1
    Part.Circle(Vector(24.1, -63.5, 0), Vector(0, 0, 1), 2.3),  # 2
    Part.Circle(Vector(50.7, -63.5, 0), Vector(0, 0, 1), 2.3),  # 3
    Part.Circle(Vector(-2.6, -38.1, 0), Vector(0, 0, 1), 2.3),  # 4
    Part.Circle(Vector(24.1, -38.1, 0), Vector(0, 0, 1), 2.3),  # 5
    Part.Circle(Vector(50.7, -38.1, 0), Vector(0, 0, 1), 2.3),  # 6
    Part.Circle(Vector(-2.6, -12.7, 0), Vector(0, 0, 1), 2.3),  # 7
    Part.Circle(Vector(24.1, -12.7, 0), Vector(0, 0, 1), 2.3),  # 8
    Part.Circle(Vector(50.7, -12.7, 0), Vector(0, 0, 1), 2.3),  # 9
    Part.Circle(Vector(-2.6, 12.7, 0), Vector(0, 0, 1), 2.3),  # 10
    Part.Circle(Vector(24.1, 12.7, 0), Vector(0, 0, 1), 2.3),  # 11
    Part.Circle(Vector(50.7, 12.7, 0), Vector(0, 0, 1), 2.3),  # 12
    Part.Circle(Vector(-2.6, 38.1, 0), Vector(0, 0, 1), 2.3),  # 13
    Part.Circle(Vector(24.1, 38.1, 0), Vector(0, 0, 1), 2.3),  # 14
    Part.Circle(Vector(50.7, 38.1, 0), Vector(0, 0, 1), 2.3),  # 15
    Part.Circle(Vector(-2.6, 63.5, 0), Vector(0, 0, 1), 2.3),  # 16
    Part.Circle(Vector(24.1, 63.5, 0), Vector(0, 0, 1), 2.3),  # 17
    Part.Circle(Vector(50.7, 63.5, 0), Vector(0, 0, 1), 2.3),  # 18
    Part.Circle(Vector(-29.2, -38.1, 0), Vector(0, 0, 1), 2.3),  # 19
    Part.Circle(Vector(-29.2, -12.7, 0), Vector(0, 0, 1), 2.3),  # 20
    Part.Circle(Vector(-29.2, 12.7, 0), Vector(0, 0, 1), 2.3),  # 21
    Part.Circle(Vector(-29.2, 38.1, 0), Vector(0, 0, 1), 2.3),  # 22
    Part.Circle(Vector(-29.2, 63.5, 0), Vector(0, 0, 1), 2.3),  # 23
    Part.Circle(Vector(70.7, -50.8, 0), Vector(0, 0, 1), 2.3),  # 24
    Part.Circle(Vector(70.7, -25.4, 0), Vector(0, 0, 1), 2.3),  # 25
    Part.Circle(Vector(70.7, 0, 0), Vector(0, 0, 1), 2.3),  # 26
    Part.Circle(Vector(70.7, 25.4, 0), Vector(0, 0, 1), 2.3),  # 27
    Part.Circle(Vector(70.7, 50.8, 0), Vector(0, 0, 1), 2.3),  # 28
], False)
sketch9.addConstraint([
    Sketcher.Constraint("Equal", 0, 1),
    Sketcher.Constraint("Equal", 1, 2),
    Sketcher.Constraint("Equal", 2, 3),
    Sketcher.Constraint("Equal", 3, 4),
    Sketcher.Constraint("Equal", 4, 5),
    Sketcher.Constraint("Equal", 5, 6),
    Sketcher.Constraint("Equal", 6, 7),
    Sketcher.Constraint("Equal", 7, 8),
    Sketcher.Constraint("Equal", 8, 9),
    Sketcher.Constraint("Equal", 9, 10),
    Sketcher.Constraint("Equal", 10, 11),
    Sketcher.Constraint("Equal", 11, 12),
    Sketcher.Constraint("Equal", 12, 13),
    Sketcher.Constraint("Equal", 13, 14),
    Sketcher.Constraint("Equal", 14, 15),
    Sketcher.Constraint("Equal", 15, 16),
    Sketcher.Constraint("Equal", 16, 17),
    Sketcher.Constraint("Equal", 17, 18),
    Sketcher.Constraint("Equal", 18, 19),
    Sketcher.Constraint("Equal", 19, 20),
    Sketcher.Constraint("Equal", 20, 21),
    Sketcher.Constraint("Equal", 21, 22),
    Sketcher.Constraint("Equal", 22, 23),
    Sketcher.Constraint("Equal", 23, 24),
    Sketcher.Constraint("Equal", 24, 25),
    Sketcher.Constraint("Equal", 25, 26),
    Sketcher.Constraint("Equal", 26, 27),
    Sketcher.Constraint("Equal", 27, 28),
    Sketcher.Constraint("Symmetric", 7, 3, 10, 3, -1),
    Sketcher.Constraint("Symmetric", 8, 3, 11, 3, -1),
    Sketcher.Constraint("Symmetric", 9, 3, 12, 3, -1),
    Sketcher.Constraint("Symmetric", 4, 3, 13, 3, -1),
    Sketcher.Constraint("Symmetric", 5, 3, 14, 3, -1),
    Sketcher.Constraint("Symmetric", 6, 3, 15, 3, -1),
    Sketcher.Constraint("Symmetric", 1, 3, 16, 3, -1),
    Sketcher.Constraint("Symmetric", 2, 3, 17, 3, -1),
    Sketcher.Constraint("Symmetric", 3, 3, 18, 3, -1),
    Sketcher.Constraint("Symmetric", 20, 3, 21, 3, -1),
    Sketcher.Constraint("Symmetric", 19, 3, 22, 3, -1),
    Sketcher.Constraint("Symmetric", 0, 3, 23, 3, -1),
    Sketcher.Constraint("Symmetric", 25, 3, 27, 3, -1),
    Sketcher.Constraint("Symmetric", 24, 3, 28, 3, -1),
    Sketcher.Constraint("PointOnObject", 26, 3, -1),
    Sketcher.Constraint("Horizontal", 0, 3, 1, 3),
    Sketcher.Constraint("Horizontal", 1, 3, 2, 3),
    Sketcher.Constraint("Horizontal", 2, 3, 3, 3),
    Sketcher.Constraint("Horizontal", 4, 3, 5, 3),
    Sketcher.Constraint("Horizontal", 5, 3, 6, 3),
    Sketcher.Constraint("Horizontal", 7, 3, 8, 3),
    Sketcher.Constraint("Horizontal", 8, 3, 9, 3),
    Sketcher.Constraint("Horizontal", 6, 3, 19, 3),
    Sketcher.Constraint("Horizontal", 9, 3, 20, 3),
    Sketcher.Constraint("Vertical", 1, 3, 4, 3),
    Sketcher.Constraint("Vertical", 2, 3, 5, 3),
    Sketcher.Constraint("Vertical", 3, 3, 6, 3),
    Sketcher.Constraint("Vertical", 4, 3, 7, 3),
    Sketcher.Constraint("Vertical", 5, 3, 8, 3),
    Sketcher.Constraint("Vertical", 6, 3, 9, 3),
    Sketcher.Constraint("Vertical", 0, 3, 19, 3),
    Sketcher.Constraint("Vertical", 19, 3, 20, 3),
    Sketcher.Constraint("Vertical", 24, 3, 25, 3),
    Sketcher.Constraint("Vertical", 25, 3, 26, 3),
    Sketcher.Constraint("Diameter", 0, Q("0.18 in")),
    Sketcher.Constraint("DistanceY", 24, 3, -1, 1, Q("2 in")),
    Sketcher.Constraint("DistanceY", 25, 3, -1, 1, Q("1 in")),
    Sketcher.Constraint("DistanceY", 1, 3, 4, 3, Q("1 in")),
    Sketcher.Constraint("DistanceY", 4, 3, 7, 3, Q("1 in")),
    Sketcher.Constraint("DistanceY", 7, 3, 10, 3, Q("1 in")),
    Sketcher.Constraint("DistanceX", 0, 3, -1, 1, Q("1.15 in")),
    Sketcher.Constraint("DistanceX", 1, 3, -1, 1, Q("0.1009 in")),
    Sketcher.Constraint("DistanceX", -1, 1, 2, 3, Q("0.9482 in")),
    Sketcher.Constraint("DistanceX", -1, 1, 3, 3, Q("1.9973 in")),
    Sketcher.Constraint("DistanceX", -1, 1, 24, 3, Q("2.7848 in")),
])
sketch9.setExpression("Constraints[62]", "Params.sketch9_diameter")
pocket4 = body.newObject("PartDesign::Pocket", "Pocket003")
pocket4.Profile = sketch9
pocket4.Type = "ThroughAll"
pocket4.Reversed = True

doc.recompute()
